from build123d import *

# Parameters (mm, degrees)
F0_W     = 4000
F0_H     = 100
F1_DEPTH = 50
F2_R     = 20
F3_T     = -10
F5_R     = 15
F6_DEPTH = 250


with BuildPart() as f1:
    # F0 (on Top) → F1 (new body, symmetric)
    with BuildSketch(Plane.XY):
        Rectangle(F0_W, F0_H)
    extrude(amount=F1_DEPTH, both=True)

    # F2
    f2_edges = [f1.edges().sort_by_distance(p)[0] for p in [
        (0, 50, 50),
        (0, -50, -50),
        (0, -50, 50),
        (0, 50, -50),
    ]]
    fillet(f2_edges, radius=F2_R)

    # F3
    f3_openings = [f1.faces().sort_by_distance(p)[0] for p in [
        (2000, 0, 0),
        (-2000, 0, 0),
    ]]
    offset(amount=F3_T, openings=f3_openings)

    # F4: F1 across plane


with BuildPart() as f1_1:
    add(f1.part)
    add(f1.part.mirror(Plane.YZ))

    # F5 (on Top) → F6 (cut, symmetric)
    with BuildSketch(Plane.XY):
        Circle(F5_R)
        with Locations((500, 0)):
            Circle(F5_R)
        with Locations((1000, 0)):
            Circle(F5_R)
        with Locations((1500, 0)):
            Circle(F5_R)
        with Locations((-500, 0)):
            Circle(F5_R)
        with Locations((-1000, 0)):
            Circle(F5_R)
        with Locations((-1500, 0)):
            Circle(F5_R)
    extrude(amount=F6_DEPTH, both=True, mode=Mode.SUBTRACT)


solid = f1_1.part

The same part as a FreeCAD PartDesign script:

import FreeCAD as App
import Part
import Sketcher


def edges_at(feature, points):
    """Names of the edges that pass closest to the given points."""
    edges = feature.Shape.Edges
    near = lambda p: min(range(len(edges)), key=lambda i: edges[i].distToShape(Part.Vertex(*p))[0])
    return sorted({f"Edge{near(p) + 1}" for p in points})


def faces_at(feature, points):
    """Names of the faces that lie closest to the given points."""
    faces = feature.Shape.Faces
    near = lambda p: min(range(len(faces)), key=lambda i: faces[i].distToShape(Part.Vertex(*p))[0])
    return sorted({f"Face{near(p) + 1}" for p in points})

doc = App.newDocument("Part")
body = doc.addObject("PartDesign::Body", "Body")

sketch1 = body.newObject("Sketcher::SketchObject", "Sketch")
sketch1.AttachmentSupport = (doc.getObject("XY_Plane"), [""])
sketch1.MapMode = "FlatFace"
sketch1.addGeometry(Part.LineSegment(App.Vector(-2000, 50, 0), App.Vector(-2000, -50, 0)), False)
sketch1.addGeometry(Part.LineSegment(App.Vector(-2000, -50, 0), App.Vector(2000, -50, 0)), False)
sketch1.addGeometry(Part.LineSegment(App.Vector(2000, -50, 0), App.Vector(2000, 50, 0)), False)
sketch1.addGeometry(Part.LineSegment(App.Vector(2000, 50, 0), App.Vector(-2000, 50, 0)), False)
sketch1.addConstraint(Sketcher.Constraint("Coincident", 0, 2, 1, 1))
sketch1.addConstraint(Sketcher.Constraint("Coincident", 1, 2, 2, 1))
sketch1.addConstraint(Sketcher.Constraint("Coincident", 2, 2, 3, 1))
sketch1.addConstraint(Sketcher.Constraint("Coincident", 3, 2, 0, 1))
sketch1.addConstraint(Sketcher.Constraint("Vertical", 0))
sketch1.addConstraint(Sketcher.Constraint("Horizontal", 1))
sketch1.addConstraint(Sketcher.Constraint("Vertical", 2))
sketch1.addConstraint(Sketcher.Constraint("Horizontal", 3))
sketch1.addConstraint(Sketcher.Constraint("Symmetric", 0, 2, 2, 2, -1, 1))
sketch1.addConstraint(Sketcher.Constraint("DistanceX", 1, 1, 1, 2, 4000.0))
sketch1.addConstraint(Sketcher.Constraint("DistanceY", 0, 2, 0, 1, 100.0))
pad1 = body.newObject("PartDesign::Pad", "Pad")
pad1.Profile = sketch1
pad1.Length = 100
pad1.Midplane = True
doc.recompute()

fillet = body.newObject("PartDesign::Fillet", "Fillet")
fillet.Base = (pad1, edges_at(pad1, [
    (0, 50, 50),
    (0, -50, -50),
    (0, -50, 50),
    (0, 50, -50),
]))
fillet.Radius = 20
doc.recompute()

thickness = body.newObject("PartDesign::Thickness", "Thickness")
thickness.Base = (fillet, faces_at(fillet, [(2000, 0, 0), (-2000, 0, 0)]))
thickness.Value = 10
thickness.Reversed = True
thickness.Join = "Arc"
body2 = doc.addObject("PartDesign::Body", "Body001")
doc.recompute()

body2.BaseFeature = body
doc.recompute()

mirroring = doc.addObject("Part::Mirroring", "Mirroring")
mirroring.Source = body
mirroring.Base = App.Vector(0, 0, 0)
mirroring.Normal = App.Vector(1, 0, 0)
body3 = doc.addObject("PartDesign::Body", "Body002")
body3.BaseFeature = mirroring
boolean = body2.newObject("PartDesign::Boolean", "Boolean")
boolean.Type = "Fuse"
boolean.addObjects([body3])
doc.recompute()

sketch2 = body2.newObject("Sketcher::SketchObject", "Sketch001")
sketch2.AttachmentSupport = (doc.getObject("XY_Plane001"), [""])
sketch2.MapMode = "FlatFace"
sketch2.addGeometry(Part.Circle(App.Vector(0, 0, 0), App.Vector(0, 0, 1), 15), False)
sketch2.addGeometry(Part.Circle(App.Vector(500, 0, 0), App.Vector(0, 0, 1), 15), False)
sketch2.addGeometry(Part.Circle(App.Vector(1000, 0, 0), App.Vector(0, 0, 1), 15), False)
sketch2.addGeometry(Part.Circle(App.Vector(1500, 0, 0), App.Vector(0, 0, 1), 15), False)
sketch2.addGeometry(Part.Circle(App.Vector(-500, 0, 0), App.Vector(0, 0, 1), 15), False)
sketch2.addGeometry(Part.Circle(App.Vector(-1000, 0, 0), App.Vector(0, 0, 1), 15), False)
sketch2.addGeometry(Part.Circle(App.Vector(-1500, 0, 0), App.Vector(0, 0, 1), 15), False)
sketch2.addConstraint(Sketcher.Constraint("Coincident", 0, 3, -1, 1))
sketch2.addConstraint(Sketcher.Constraint("Equal", 0, 1))
sketch2.addConstraint(Sketcher.Constraint("Equal", 1, 2))
sketch2.addConstraint(Sketcher.Constraint("Equal", 2, 3))
sketch2.addConstraint(Sketcher.Constraint("Equal", 3, 4))
sketch2.addConstraint(Sketcher.Constraint("Equal", 4, 5))
sketch2.addConstraint(Sketcher.Constraint("Equal", 5, 6))
sketch2.addConstraint(Sketcher.Constraint("Symmetric", 1, 3, 4, 3, -1, 1))
sketch2.addConstraint(Sketcher.Constraint("Symmetric", 2, 3, 5, 3, -1, 1))
sketch2.addConstraint(Sketcher.Constraint("Symmetric", 3, 3, 6, 3, -1, 1))
sketch2.addConstraint(Sketcher.Constraint("PointOnObject", 1, 3, -1))
sketch2.addConstraint(Sketcher.Constraint("PointOnObject", 2, 3, -1))
sketch2.addConstraint(Sketcher.Constraint("PointOnObject", 3, 3, -1))
sketch2.addConstraint(Sketcher.Constraint("Diameter", 0, 30.0))
sketch2.addConstraint(Sketcher.Constraint("DistanceX", -1, 1, 1, 3, 500.0))
sketch2.addConstraint(Sketcher.Constraint("DistanceX", -1, 1, 2, 3, 1000.0))
sketch2.addConstraint(Sketcher.Constraint("DistanceX", -1, 1, 3, 3, 1500.0))
pocket1 = body2.newObject("PartDesign::Pocket", "Pocket")
pocket1.Profile = sketch2
pocket1.Length = 500
pocket1.Midplane = True
mirroring.Visibility = False

doc.recompute()
